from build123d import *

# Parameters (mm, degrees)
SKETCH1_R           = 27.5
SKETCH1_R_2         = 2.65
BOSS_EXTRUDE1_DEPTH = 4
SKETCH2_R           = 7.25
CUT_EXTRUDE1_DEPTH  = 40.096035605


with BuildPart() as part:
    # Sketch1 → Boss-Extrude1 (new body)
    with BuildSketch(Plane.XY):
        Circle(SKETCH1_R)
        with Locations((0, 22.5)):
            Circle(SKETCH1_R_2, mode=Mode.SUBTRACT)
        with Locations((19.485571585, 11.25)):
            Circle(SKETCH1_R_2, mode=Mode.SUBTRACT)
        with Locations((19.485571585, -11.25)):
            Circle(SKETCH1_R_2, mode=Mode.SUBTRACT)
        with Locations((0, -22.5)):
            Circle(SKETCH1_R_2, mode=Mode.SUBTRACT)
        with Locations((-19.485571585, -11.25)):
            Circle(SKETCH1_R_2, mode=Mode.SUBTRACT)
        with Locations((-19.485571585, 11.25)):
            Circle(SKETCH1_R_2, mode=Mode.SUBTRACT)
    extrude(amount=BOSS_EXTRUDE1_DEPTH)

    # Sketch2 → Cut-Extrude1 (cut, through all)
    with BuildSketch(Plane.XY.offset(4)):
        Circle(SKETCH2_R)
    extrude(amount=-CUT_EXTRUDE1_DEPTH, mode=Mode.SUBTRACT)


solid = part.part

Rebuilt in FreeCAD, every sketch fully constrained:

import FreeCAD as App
import Part
import Sketcher

V = App.Vector
Q = App.Units.Quantity

doc = App.newDocument("Part")
params = doc.addObject("Spreadsheet::Sheet", "Params")
for row, (alias, value) in enumerate([
    ("sketch1_diameter", "55 mm"),
    ("sketch1_diameter2", "5.3 mm"),
    ("pad1_length", "4 mm"),
    ("sketch2_diameter", "14.5 mm"),
], start=1):
    params.set(f"A{row}", alias)
    params.set(f"B{row}", "=" + value)
    params.setAlias(f"B{row}", alias)

body = doc.addObject("PartDesign::Body", "Body")

sketch1 = doc.addObject("Sketcher::SketchObject", "Sketch")
body.addObject(sketch1)
sketch1.AttachmentSupport = (doc.XY_Plane, [""])
sketch1.MapMode = "FlatFace"
sketch1.addGeometry([
    Part.Circle(V(0, 0, 0), V(0, 0, 1), 27.5),
    Part.Circle(V(-19.5, -11.2, 0), V(0, 0, 1), 2.6),
    Part.Circle(V(0, -22.5, 0), V(0, 0, 1), 2.6),
    Part.Circle(V(19.5, -11.2, 0), V(0, 0, 1), 2.6),
    Part.Circle(V(-19.5, 11.2, 0), V(0, 0, 1), 2.6),
    Part.Circle(V(19.5, 11.2, 0), V(0, 0, 1), 2.6),
    Part.Circle(V(0, 22.5, 0), V(0, 0, 1), 2.6),
], False)
sketch1.addConstraint([
    Sketcher.Constraint("Coincident", 0, 3, -1, 1),
    Sketcher.Constraint("Equal", 1, 2),
    Sketcher.Constraint("Equal", 2, 3),
    Sketcher.Constraint("Equal", 3, 4),
    Sketcher.Constraint("Equal", 4, 5),
    Sketcher.Constraint("Equal", 5, 6),
    Sketcher.Constraint("Symmetric", 3, 3, 4, 3, -1, 1),
    Sketcher.Constraint("Symmetric", 1, 3, 5, 3, -1, 1),
    Sketcher.Constraint("Symmetric", 2, 3, 6, 3, -1, 1),
    Sketcher.Constraint("Symmetric", 1, 3, 3, 3, -2),
    Sketcher.Constraint("PointOnObject", 2, 3, -2),
    Sketcher.Constraint("Diameter", 0, Q("55 mm")),
    Sketcher.Constraint("Diameter", 1, Q("5.3 mm")),
    Sketcher.Constraint("DistanceY", 2, 3, -1, 1, Q("22.5 mm")),
    Sketcher.Constraint("DistanceY", 1, 3, 4, 3, Q("22.5 mm")),
    Sketcher.Constraint("DistanceX", 1, 3, -1, 1, Q("19.485572 mm")),
])
sketch1.setExpression("Constraints[11]", "Params.sketch1_diameter")
sketch1.setExpression("Constraints[12]", "Params.sketch1_diameter2")
pad1 = doc.addObject("PartDesign::Pad", "Pad")
body.addObject(pad1)
pad1.Profile = sketch1
pad1.setExpression("Length", "Params.pad1_length")

sketch2 = doc.addObject("Sketcher::SketchObject", "Sketch001")
body.addObject(sketch2)
sketch2.AttachmentSupport = (doc.XY_Plane, [""])
sketch2.MapMode = "FlatFace"
sketch2.AttachmentOffset = App.Placement(V(0, 0, 4), App.Rotation())
sketch2.addGeometry(Part.Circle(V(0, 0, 0), V(0, 0, 1), 7), False)
sketch2.addConstraint([
    Sketcher.Constraint("Coincident", 0, 3, -1, 1),
    Sketcher.Constraint("Diameter", 0, Q("14.5 mm")),
])
sketch2.setExpression("Constraints[1]", "Params.sketch2_diameter")
pocket1 = doc.addObject("PartDesign::Pocket", "Pocket")
body.addObject(pocket1)
pocket1.Profile = sketch2
pocket1.Type = "ThroughAll"

doc.recompute()
